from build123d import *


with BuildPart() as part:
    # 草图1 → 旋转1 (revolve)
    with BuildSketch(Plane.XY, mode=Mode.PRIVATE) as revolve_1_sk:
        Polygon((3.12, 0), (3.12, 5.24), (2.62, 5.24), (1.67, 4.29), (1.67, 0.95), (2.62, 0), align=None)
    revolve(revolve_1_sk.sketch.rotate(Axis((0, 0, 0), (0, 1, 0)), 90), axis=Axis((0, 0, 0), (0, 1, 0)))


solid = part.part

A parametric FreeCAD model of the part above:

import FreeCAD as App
import Part
import Sketcher
from FreeCAD import Vector
Q = App.Units.Quantity


def add_polygon(sketch, points):
    """Adds a closed chain of lines whose ends are joined by coincident constraints."""
    first, n = sketch.GeometryCount, len(points)
    for a, b in zip(points, points[1:] + points[:1]):
        sketch.addGeometry(Part.LineSegment(App.Vector(*a, 0), App.Vector(*b, 0)), False)
    for i in range(n):
        sketch.addConstraint(Sketcher.Constraint("Coincident", first + i, 2, first + (i + 1) % n, 1))

doc = App.newDocument("Part")
body = doc.addObject("PartDesign::Body", "Body")

# Sketch on XY plane
sketch1 = body.newObject("Sketcher::SketchObject", "Sketch")
sketch1.AttachmentSupport = (doc.getObject("XY_Plane"), [""])
sketch1.MapMode = "FlatFace"
add_polygon(sketch1, [(3.1, 0), (3.1, 5.2), (2.6, 5.2), (1.7, 4.3), (1.7, 0.9), (2.6, 0)])  # lines 0-5
sketch1.addConstraint(Sketcher.Constraint("Vertical", 0))
sketch1.addConstraint(Sketcher.Constraint("Horizontal", 1))
sketch1.addConstraint(Sketcher.Constraint("Vertical", 3))
sketch1.addConstraint(Sketcher.Constraint("Horizontal", 5))
sketch1.addConstraint(Sketcher.Constraint("PointOnObject", 4, 2, -1))
sketch1.addConstraint(Sketcher.Constraint("Perpendicular", 2, 4))
sketch1.addConstraint(Sketcher.Constraint("Vertical", 1, 2, 4, 2))
sketch1.addConstraint(Sketcher.Constraint("Equal", 2, 4))
sketch1.addConstraint(Sketcher.Constraint("DistanceX", 1, 2, 1, 1, Q("0.5 mm")))
sketch1.addConstraint(Sketcher.Constraint("DistanceY", 0, 1, 0, 2, Q("5.24 mm")))
sketch1.addConstraint(Sketcher.Constraint("DistanceY", 3, 2, 3, 1, Q("3.34 mm")))
sketch1.addConstraint(Sketcher.Constraint("DistanceX", -1, 1, 0, 2, Q("3.12 mm")))
revolution = body.newObject("PartDesign::Revolution", "Revolution")
revolution.Profile = sketch1
revolution.ReferenceAxis = (sketch1, ["V_Axis"])
revolution.Angle = 360

doc.recompute()
